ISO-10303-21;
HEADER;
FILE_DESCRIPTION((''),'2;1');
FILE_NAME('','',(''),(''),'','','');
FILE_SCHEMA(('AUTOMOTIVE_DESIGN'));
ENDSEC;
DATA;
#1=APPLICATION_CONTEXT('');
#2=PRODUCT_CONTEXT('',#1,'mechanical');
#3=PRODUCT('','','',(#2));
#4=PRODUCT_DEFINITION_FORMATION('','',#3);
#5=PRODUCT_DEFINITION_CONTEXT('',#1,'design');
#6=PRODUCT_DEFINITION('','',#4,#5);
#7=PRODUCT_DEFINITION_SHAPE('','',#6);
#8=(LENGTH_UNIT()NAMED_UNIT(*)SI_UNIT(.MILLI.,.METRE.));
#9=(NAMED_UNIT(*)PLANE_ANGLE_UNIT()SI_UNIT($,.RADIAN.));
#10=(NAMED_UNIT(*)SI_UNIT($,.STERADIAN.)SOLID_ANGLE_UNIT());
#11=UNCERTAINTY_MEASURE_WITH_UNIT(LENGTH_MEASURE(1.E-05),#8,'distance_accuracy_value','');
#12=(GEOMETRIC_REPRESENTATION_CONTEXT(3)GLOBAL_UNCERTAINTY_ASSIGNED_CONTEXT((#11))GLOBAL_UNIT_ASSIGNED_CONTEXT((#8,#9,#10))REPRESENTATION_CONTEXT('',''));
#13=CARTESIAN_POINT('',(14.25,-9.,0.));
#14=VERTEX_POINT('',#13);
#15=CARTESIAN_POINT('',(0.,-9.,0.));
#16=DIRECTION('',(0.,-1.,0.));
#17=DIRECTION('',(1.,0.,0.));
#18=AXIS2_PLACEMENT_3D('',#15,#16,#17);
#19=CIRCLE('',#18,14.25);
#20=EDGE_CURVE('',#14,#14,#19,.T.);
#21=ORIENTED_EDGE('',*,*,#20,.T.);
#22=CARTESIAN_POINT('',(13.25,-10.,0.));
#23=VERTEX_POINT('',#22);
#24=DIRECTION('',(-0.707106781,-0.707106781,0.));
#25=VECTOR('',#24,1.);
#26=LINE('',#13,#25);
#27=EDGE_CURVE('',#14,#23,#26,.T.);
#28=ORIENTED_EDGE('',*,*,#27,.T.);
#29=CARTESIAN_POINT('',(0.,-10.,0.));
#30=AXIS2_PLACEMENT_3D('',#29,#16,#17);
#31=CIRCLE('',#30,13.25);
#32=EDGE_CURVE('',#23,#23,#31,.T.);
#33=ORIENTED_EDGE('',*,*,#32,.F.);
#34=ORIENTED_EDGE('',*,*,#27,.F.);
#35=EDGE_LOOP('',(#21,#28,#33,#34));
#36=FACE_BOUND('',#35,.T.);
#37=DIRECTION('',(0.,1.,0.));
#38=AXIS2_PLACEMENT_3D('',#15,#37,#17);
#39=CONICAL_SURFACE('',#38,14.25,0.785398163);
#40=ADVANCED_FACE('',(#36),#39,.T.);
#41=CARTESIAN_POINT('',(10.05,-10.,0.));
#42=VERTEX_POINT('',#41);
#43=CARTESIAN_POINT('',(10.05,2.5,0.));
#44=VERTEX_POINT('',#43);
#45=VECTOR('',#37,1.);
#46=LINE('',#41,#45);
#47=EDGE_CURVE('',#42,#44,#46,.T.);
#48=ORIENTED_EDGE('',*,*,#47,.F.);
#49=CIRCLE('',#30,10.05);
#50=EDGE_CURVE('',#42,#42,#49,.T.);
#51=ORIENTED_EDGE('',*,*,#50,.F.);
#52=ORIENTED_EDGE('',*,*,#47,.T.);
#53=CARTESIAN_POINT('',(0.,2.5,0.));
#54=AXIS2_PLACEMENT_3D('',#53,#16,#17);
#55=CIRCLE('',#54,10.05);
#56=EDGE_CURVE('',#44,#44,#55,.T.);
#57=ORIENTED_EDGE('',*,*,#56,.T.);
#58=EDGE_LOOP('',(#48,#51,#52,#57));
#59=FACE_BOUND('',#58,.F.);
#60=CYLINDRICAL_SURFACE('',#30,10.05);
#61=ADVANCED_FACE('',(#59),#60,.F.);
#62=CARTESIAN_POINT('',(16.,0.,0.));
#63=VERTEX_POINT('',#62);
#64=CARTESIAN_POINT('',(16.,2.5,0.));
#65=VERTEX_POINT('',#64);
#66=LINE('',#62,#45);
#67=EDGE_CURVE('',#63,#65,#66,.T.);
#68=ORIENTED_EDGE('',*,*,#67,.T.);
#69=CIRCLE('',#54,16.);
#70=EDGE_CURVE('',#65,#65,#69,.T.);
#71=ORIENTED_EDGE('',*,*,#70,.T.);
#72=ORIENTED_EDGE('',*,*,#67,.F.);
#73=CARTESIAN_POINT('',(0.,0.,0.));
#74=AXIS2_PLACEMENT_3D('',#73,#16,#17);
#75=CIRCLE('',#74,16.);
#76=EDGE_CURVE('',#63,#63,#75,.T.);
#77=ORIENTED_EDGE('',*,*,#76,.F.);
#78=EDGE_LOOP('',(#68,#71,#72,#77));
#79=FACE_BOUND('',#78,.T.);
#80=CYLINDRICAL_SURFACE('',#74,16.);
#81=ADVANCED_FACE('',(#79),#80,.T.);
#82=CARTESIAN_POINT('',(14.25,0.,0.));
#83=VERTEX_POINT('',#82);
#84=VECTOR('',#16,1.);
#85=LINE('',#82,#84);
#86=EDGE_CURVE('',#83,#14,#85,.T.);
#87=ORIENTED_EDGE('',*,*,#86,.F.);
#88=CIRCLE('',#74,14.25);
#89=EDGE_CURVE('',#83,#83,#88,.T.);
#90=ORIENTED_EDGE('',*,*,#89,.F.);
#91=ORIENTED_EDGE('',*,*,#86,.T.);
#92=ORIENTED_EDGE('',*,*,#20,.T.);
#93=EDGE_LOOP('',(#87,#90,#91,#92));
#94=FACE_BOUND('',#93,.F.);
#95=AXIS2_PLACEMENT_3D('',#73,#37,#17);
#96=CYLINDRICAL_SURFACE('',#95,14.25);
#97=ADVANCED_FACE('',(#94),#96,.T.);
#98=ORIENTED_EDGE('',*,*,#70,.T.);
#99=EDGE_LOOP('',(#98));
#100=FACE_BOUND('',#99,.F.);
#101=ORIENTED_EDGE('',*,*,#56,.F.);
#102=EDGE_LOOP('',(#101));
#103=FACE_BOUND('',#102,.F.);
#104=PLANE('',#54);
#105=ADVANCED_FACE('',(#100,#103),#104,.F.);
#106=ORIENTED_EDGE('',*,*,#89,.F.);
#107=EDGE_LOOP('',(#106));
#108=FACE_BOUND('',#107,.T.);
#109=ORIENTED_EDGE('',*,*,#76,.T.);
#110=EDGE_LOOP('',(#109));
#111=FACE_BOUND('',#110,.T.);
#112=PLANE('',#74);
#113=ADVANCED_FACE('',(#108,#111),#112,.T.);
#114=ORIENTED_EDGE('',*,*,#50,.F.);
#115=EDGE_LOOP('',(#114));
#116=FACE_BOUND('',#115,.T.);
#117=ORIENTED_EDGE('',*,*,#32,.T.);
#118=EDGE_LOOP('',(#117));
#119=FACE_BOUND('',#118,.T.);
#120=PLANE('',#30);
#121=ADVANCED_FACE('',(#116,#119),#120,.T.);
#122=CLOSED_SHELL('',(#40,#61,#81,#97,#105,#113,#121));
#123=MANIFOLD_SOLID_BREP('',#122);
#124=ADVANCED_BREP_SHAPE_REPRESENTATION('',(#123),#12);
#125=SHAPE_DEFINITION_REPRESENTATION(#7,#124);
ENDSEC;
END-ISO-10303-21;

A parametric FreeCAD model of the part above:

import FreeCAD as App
import Part
import Sketcher
from FreeCAD import Vector


def edges_at(feature, points):
    """Names of the edges that pass closest to the given points."""
    edges = feature.Shape.Edges
    near = lambda p: min(range(len(edges)), key=lambda i: edges[i].distToShape(Part.Vertex(*p))[0])
    return sorted({f"Edge{near(p) + 1}" for p in points})

doc = App.newDocument("Part")
body = doc.addObject("PartDesign::Body", "Body")

# Sketch on XZ plane
sketch1 = doc.addObject("Sketcher::SketchObject", "Sketch")
body.addObject(sketch1)
sketch1.AttachmentSupport = (doc.XZ_Plane, [""])
sketch1.MapMode = "FlatFace"
sketch1.addGeometry(Part.Circle(Vector(0, 0, 0), Vector(0, 0, 1), 14.25), False)
sketch1.addConstraint([
    Sketcher.Constraint("Coincident", 0, 3, -1, 1),
    Sketcher.Constraint("Diameter", 0, 28.5),
])
pad1 = doc.addObject("PartDesign::Pad", "Pad")
body.addObject(pad1)
pad1.Profile = sketch1
pad1.Length = 10

# Sketch on XZ plane
sketch2 = doc.addObject("Sketcher::SketchObject", "Sketch001")
body.addObject(sketch2)
sketch2.AttachmentSupport = (doc.XZ_Plane, [""])
sketch2.MapMode = "FlatFace"
sketch2.addGeometry(Part.Circle(Vector(0, 0, 0), Vector(0, 0, 1), 16), False)
sketch2.addConstraint([
    Sketcher.Constraint("Coincident", 0, 3, -1, 1),
    Sketcher.Constraint("Diameter", 0, 32.0),
])
pad2 = doc.addObject("PartDesign::Pad", "Pad001")
body.addObject(pad2)
pad2.Profile = sketch2
pad2.Length = 2.5
pad2.Reversed = True
doc.recompute()

chamfer = doc.addObject("PartDesign::Chamfer", "Chamfer")
body.addObject(chamfer)
chamfer.Base = (pad2, edges_at(pad2, [(-14.25, -10, 0)]))
chamfer.Size = 1

# Sketch on XZ plane
sketch3 = doc.addObject("Sketcher::SketchObject", "Sketch002")
body.addObject(sketch3)
sketch3.AttachmentSupport = (doc.XZ_Plane, [""])
sketch3.MapMode = "FlatFace"
sketch3.AttachmentOffset = App.Placement(Vector(0, 0, 10), App.Rotation())
sketch3.addGeometry(Part.Circle(Vector(0, 0, 0), Vector(0, 0, 1), 10.05), False)
sketch3.addConstraint([
    Sketcher.Constraint("Coincident", 0, 3, -1, 1),
    Sketcher.Constraint("Diameter", 0, 20.1),
])
pocket1 = doc.addObject("PartDesign::Pocket", "Pocket")
body.addObject(pocket1)
pocket1.Profile = sketch3
pocket1.Length = 15

doc.recompute()
